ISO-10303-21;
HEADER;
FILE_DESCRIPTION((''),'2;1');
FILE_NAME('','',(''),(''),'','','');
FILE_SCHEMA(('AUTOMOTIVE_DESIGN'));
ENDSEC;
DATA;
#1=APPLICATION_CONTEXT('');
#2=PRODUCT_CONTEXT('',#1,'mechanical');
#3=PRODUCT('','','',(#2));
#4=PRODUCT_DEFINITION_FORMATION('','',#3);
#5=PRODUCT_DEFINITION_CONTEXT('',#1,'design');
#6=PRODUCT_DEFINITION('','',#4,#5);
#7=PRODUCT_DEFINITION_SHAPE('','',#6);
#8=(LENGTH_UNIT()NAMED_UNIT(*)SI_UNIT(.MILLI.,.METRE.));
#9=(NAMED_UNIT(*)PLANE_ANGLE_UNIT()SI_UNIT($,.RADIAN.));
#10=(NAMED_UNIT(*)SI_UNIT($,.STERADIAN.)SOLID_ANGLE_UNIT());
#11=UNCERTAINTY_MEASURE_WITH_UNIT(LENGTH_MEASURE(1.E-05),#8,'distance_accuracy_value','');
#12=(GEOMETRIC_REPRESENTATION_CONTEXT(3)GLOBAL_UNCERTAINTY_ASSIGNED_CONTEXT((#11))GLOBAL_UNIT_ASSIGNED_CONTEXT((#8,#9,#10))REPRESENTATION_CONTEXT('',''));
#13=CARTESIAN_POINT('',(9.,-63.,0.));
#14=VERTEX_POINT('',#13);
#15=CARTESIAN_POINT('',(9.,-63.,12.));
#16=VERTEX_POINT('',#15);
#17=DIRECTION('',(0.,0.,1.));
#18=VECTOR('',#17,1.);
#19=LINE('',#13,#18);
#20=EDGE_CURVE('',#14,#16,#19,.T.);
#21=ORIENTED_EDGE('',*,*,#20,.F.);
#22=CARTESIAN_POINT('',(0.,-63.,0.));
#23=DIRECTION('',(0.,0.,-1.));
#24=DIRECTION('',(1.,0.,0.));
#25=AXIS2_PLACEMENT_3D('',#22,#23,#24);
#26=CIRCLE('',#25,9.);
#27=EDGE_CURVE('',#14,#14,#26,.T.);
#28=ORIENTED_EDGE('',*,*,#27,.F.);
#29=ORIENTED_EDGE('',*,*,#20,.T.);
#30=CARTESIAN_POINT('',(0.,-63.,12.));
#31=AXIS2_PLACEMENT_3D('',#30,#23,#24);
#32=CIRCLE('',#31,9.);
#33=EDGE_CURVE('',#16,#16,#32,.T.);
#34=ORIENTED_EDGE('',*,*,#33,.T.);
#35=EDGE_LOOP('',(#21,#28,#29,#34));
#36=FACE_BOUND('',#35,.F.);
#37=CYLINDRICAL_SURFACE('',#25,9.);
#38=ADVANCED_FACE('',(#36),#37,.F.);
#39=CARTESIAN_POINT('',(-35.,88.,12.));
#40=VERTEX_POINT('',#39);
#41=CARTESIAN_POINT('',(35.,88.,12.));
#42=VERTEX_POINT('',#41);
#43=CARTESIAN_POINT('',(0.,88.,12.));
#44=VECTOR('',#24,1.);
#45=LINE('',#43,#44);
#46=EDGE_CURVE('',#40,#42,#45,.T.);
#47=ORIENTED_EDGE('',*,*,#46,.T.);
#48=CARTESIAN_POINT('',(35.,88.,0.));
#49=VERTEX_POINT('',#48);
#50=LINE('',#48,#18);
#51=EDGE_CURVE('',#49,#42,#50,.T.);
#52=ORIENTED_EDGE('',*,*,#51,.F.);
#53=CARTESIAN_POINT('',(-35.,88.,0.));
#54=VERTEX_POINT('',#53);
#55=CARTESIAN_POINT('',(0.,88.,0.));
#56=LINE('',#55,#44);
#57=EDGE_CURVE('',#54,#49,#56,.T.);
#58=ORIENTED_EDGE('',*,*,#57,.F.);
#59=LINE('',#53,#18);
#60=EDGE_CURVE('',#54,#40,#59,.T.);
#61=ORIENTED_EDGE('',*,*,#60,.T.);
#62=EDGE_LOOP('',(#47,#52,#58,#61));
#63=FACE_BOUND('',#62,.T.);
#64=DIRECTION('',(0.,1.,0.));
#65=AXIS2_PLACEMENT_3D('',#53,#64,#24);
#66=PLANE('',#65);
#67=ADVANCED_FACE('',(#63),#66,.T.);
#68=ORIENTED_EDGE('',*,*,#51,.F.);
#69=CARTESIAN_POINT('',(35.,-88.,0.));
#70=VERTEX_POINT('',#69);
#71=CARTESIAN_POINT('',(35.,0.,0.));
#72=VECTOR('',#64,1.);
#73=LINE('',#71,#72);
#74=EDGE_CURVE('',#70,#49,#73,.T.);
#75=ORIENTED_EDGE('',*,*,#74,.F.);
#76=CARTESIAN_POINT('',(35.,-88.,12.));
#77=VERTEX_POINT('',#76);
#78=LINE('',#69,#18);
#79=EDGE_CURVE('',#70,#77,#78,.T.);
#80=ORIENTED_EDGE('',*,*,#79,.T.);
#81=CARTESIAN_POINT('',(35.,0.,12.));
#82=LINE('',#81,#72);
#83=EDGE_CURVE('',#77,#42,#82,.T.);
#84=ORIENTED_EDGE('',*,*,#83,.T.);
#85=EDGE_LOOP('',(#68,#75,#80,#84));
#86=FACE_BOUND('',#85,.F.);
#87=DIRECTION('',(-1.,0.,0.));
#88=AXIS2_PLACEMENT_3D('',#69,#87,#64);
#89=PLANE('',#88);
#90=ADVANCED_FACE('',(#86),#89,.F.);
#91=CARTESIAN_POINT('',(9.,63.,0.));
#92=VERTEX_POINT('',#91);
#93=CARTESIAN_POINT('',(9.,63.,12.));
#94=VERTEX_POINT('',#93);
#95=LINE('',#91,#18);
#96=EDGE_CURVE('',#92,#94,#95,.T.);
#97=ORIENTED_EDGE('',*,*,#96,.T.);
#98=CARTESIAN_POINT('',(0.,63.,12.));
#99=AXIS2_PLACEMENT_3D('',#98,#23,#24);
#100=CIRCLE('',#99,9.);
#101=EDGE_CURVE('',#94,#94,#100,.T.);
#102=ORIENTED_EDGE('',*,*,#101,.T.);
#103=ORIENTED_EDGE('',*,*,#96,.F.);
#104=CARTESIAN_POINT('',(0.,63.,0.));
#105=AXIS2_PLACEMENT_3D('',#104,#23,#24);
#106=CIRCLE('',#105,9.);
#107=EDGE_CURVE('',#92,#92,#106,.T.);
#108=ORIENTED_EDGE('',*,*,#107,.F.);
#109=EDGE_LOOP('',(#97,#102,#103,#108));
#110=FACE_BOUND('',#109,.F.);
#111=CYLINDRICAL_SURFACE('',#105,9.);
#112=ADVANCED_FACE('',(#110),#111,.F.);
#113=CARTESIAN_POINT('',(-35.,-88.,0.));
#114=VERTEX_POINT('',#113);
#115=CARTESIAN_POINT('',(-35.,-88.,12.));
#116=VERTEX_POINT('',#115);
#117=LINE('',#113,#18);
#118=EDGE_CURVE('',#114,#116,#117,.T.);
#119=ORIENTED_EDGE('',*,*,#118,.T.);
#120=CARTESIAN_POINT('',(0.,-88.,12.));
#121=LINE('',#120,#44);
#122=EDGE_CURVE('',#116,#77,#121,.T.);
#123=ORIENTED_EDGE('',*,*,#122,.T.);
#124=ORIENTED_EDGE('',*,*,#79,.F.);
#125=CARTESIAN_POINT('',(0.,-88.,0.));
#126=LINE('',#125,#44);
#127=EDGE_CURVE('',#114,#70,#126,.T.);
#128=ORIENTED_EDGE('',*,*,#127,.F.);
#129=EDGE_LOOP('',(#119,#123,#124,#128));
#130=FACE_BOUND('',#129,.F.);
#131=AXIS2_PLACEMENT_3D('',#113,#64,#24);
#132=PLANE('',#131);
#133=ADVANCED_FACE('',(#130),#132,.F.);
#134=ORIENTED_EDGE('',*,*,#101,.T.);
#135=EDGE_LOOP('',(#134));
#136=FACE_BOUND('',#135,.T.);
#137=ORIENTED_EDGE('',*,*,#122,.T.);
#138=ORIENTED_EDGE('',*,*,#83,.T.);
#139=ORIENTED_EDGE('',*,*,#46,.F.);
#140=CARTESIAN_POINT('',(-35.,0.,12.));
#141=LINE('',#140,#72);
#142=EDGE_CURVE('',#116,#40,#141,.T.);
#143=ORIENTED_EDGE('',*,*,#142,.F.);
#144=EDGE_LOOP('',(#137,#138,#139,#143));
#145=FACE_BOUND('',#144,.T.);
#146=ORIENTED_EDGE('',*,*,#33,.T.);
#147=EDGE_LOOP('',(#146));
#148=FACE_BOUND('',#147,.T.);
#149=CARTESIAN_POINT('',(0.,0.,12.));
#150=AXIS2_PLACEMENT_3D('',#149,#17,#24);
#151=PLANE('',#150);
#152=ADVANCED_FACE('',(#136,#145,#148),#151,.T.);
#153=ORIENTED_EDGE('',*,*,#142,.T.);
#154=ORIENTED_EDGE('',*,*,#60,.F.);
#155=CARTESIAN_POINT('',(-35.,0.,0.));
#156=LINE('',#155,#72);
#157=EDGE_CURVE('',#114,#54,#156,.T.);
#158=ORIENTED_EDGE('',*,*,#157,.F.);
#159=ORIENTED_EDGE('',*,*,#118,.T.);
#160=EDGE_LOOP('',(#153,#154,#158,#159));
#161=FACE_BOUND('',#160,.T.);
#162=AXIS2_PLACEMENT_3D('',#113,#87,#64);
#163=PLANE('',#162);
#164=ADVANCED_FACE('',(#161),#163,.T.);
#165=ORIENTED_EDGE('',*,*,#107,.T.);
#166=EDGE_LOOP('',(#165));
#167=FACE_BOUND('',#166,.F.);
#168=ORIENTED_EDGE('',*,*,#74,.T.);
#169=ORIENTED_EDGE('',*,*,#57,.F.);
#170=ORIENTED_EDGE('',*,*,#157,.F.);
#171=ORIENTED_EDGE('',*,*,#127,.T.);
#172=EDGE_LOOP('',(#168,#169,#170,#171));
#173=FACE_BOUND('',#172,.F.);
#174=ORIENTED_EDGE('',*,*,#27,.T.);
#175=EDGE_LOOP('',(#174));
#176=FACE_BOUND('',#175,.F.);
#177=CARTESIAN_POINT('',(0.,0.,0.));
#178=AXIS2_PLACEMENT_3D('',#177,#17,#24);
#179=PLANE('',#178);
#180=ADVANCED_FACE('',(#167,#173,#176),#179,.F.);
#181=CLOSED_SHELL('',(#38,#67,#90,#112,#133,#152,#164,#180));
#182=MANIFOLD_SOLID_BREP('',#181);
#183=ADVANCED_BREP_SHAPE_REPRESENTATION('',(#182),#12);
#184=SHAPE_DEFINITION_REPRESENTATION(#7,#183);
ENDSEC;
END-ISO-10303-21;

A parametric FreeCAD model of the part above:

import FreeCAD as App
import Part
import Sketcher

V = App.Vector
Q = App.Units.Quantity


def add_polygon(sketch, points):
    """Adds a closed chain of lines whose ends are joined by coincident constraints."""
    first, n = sketch.GeometryCount, len(points)
    for a, b in zip(points, points[1:] + points[:1]):
        sketch.addGeometry(Part.LineSegment(App.Vector(*a, 0), App.Vector(*b, 0)), False)
    for i in range(n):
        sketch.addConstraint(Sketcher.Constraint("Coincident", first + i, 2, first + (i + 1) % n, 1))

doc = App.newDocument("Part")
body = doc.addObject("PartDesign::Body", "Body")

sketch1 = body.newObject("Sketcher::SketchObject", "Sketch")
sketch1.AttachmentSupport = (doc.getObject("XY_Plane"), [""])
sketch1.MapMode = "FlatFace"
add_polygon(sketch1, [(-35, 88), (-35, -88), (35, -88), (35, 88)])
sketch1.addConstraint(Sketcher.Constraint("Vertical", 0))
sketch1.addConstraint(Sketcher.Constraint("Horizontal", 1))
sketch1.addConstraint(Sketcher.Constraint("Vertical", 2))
sketch1.addConstraint(Sketcher.Constraint("Horizontal", 3))
sketch1.addConstraint(Sketcher.Constraint("Symmetric", 0, 2, 2, 2, -1, 1))
sketch1.addConstraint(Sketcher.Constraint("DistanceX", 1, 1, 1, 2, Q("70 mm")))
sketch1.addConstraint(Sketcher.Constraint("DistanceY", 0, 2, 0, 1, Q("176 mm")))
pad1 = body.newObject("PartDesign::Pad", "Pad")
pad1.Profile = sketch1
pad1.Length = 12

sketch2 = body.newObject("Sketcher::SketchObject", "Sketch001")
sketch2.AttachmentSupport = (doc.getObject("XY_Plane"), [""])
sketch2.MapMode = "FlatFace"
sketch2.addGeometry(Part.Circle(V(0, -63, 0), V(0, 0, 1), 9), False)
sketch2.addGeometry(Part.Circle(V(0, 63, 0), V(0, 0, 1), 9), False)
sketch2.addConstraint(Sketcher.Constraint("Equal", 0, 1))
sketch2.addConstraint(Sketcher.Constraint("Symmetric", 0, 3, 1, 3, -1, 1))
sketch2.addConstraint(Sketcher.Constraint("PointOnObject", 0, 3, -2))
sketch2.addConstraint(Sketcher.Constraint("Diameter", 0, Q("18 mm")))
sketch2.addConstraint(Sketcher.Constraint("DistanceY", 0, 3, -1, 1, Q("63 mm")))
pocket1 = body.newObject("PartDesign::Pocket", "Pocket")
pocket1.Profile = sketch2
pocket1.Length = 25
pocket1.Reversed = True

doc.recompute()
